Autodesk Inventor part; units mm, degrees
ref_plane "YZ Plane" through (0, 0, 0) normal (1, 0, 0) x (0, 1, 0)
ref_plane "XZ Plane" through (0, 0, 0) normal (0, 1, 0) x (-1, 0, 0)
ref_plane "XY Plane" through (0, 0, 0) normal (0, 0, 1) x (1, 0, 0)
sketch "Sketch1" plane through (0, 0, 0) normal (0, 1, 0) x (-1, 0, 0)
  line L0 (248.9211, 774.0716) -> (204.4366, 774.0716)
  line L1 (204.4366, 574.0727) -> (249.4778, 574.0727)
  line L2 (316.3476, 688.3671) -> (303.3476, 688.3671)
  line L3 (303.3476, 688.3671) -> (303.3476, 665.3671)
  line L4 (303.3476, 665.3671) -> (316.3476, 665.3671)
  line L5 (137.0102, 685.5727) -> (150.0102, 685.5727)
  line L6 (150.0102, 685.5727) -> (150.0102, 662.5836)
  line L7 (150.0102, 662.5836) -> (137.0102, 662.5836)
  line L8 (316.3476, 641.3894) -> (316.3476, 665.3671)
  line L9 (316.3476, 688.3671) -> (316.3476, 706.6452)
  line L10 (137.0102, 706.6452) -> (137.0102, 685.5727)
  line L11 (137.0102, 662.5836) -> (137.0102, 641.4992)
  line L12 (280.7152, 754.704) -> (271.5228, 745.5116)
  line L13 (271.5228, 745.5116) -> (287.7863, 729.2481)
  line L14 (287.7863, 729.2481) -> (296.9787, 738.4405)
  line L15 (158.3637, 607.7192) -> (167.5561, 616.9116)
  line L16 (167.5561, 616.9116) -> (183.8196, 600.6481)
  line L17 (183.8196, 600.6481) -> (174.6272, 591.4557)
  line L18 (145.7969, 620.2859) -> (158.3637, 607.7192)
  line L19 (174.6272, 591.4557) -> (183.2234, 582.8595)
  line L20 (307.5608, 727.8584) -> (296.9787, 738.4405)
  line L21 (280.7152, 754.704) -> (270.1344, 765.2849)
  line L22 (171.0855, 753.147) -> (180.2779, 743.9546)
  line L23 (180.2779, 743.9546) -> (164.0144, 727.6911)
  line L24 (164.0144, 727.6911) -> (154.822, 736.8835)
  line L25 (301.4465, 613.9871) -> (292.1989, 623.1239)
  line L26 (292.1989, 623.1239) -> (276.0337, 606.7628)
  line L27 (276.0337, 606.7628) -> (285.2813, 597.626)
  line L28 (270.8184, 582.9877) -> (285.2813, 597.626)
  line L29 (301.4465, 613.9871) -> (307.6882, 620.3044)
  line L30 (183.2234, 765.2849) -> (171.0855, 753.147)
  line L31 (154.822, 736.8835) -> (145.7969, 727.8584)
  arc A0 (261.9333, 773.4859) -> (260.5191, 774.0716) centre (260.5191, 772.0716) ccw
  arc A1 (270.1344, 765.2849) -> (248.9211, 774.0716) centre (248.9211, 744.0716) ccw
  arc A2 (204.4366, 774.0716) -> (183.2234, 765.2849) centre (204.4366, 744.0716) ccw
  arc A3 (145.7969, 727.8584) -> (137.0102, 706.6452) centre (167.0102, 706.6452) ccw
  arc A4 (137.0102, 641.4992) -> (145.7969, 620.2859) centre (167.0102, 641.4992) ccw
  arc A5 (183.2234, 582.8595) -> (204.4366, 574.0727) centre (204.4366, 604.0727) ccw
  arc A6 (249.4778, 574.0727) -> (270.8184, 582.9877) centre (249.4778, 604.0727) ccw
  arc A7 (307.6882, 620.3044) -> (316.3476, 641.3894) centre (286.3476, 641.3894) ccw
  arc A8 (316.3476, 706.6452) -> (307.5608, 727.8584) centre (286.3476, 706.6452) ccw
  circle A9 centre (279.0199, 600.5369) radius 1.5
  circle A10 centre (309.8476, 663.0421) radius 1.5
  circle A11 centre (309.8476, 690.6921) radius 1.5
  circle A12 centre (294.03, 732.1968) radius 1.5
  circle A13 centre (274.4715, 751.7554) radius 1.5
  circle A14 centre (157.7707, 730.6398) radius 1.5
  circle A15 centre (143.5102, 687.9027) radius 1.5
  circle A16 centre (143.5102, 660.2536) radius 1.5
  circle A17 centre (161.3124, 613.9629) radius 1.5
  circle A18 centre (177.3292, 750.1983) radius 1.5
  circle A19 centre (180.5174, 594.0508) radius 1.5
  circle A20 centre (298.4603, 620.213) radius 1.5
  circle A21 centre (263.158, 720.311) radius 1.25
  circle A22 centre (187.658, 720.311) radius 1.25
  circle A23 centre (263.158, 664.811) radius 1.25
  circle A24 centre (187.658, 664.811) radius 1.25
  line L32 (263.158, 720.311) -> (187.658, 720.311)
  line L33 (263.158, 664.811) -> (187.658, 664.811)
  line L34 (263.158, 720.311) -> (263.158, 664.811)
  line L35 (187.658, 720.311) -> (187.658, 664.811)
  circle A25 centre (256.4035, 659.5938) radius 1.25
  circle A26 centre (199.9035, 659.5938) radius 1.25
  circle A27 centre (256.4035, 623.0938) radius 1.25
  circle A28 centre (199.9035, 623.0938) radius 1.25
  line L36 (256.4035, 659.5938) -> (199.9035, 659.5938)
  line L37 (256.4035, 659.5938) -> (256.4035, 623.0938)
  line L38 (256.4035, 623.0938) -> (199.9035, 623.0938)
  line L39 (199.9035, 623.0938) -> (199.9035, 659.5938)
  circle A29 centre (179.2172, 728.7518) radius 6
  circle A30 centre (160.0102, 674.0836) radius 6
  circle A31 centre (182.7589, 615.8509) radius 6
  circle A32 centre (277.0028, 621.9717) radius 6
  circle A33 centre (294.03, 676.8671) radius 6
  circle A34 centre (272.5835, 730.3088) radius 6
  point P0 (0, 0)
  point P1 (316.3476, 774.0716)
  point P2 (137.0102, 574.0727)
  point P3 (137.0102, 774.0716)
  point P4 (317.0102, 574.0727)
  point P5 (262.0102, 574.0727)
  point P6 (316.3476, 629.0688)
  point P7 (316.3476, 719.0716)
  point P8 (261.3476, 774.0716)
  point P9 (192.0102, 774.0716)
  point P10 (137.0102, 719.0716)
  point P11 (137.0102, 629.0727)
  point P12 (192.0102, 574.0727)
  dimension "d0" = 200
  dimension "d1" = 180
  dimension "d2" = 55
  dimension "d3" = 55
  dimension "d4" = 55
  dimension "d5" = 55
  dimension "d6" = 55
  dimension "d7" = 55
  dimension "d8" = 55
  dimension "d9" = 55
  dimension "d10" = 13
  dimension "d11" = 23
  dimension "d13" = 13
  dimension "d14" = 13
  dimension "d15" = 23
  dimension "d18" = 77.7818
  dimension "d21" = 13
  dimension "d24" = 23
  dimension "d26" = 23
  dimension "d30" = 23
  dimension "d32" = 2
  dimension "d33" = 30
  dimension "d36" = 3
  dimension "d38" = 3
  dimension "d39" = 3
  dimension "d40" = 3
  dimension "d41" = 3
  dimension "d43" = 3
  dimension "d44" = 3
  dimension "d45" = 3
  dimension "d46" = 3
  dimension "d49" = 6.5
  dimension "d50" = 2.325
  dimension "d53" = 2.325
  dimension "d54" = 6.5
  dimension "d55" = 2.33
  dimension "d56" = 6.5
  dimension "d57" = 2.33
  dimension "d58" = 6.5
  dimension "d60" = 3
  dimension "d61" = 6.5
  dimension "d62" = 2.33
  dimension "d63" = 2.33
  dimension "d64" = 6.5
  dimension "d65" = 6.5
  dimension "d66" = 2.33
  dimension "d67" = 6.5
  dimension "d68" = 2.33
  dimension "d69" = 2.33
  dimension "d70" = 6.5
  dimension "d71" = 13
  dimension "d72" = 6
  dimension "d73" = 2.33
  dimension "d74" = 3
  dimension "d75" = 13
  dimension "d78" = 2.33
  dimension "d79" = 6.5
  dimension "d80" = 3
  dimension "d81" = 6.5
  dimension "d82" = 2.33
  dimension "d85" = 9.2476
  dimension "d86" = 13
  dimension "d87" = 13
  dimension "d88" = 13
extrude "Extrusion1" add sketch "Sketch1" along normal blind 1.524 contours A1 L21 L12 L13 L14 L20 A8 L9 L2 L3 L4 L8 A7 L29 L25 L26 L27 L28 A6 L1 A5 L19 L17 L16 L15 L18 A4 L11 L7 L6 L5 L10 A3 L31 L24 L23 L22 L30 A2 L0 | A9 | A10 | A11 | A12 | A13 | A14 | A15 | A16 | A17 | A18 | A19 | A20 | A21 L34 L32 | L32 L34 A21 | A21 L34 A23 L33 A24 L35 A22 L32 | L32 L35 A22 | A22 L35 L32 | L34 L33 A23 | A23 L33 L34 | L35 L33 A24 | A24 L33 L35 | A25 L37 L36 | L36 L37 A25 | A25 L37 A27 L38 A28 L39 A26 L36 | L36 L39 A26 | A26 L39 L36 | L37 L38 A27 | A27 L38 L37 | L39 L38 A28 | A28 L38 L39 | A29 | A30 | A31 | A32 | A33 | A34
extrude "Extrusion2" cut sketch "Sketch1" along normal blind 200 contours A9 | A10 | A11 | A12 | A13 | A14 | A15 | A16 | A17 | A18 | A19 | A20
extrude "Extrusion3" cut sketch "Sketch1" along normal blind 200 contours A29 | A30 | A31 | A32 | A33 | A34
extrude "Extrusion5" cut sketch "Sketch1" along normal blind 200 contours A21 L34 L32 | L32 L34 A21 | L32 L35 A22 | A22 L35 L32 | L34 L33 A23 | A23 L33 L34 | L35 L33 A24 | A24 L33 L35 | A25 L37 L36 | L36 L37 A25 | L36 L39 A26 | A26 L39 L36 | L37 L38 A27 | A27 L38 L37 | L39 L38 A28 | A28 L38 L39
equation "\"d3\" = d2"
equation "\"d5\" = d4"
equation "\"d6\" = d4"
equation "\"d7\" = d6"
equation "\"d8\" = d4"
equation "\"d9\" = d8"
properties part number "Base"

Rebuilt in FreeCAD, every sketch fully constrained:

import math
import FreeCAD as App
import Part
import Sketcher
Q = App.Units.Quantity

doc = App.newDocument("Part")
body = doc.addObject("PartDesign::Body", "Body")

sketch1 = doc.addObject("Sketcher::SketchObject", "Sketch")
body.addObject(sketch1)
sketch1.AttachmentSupport = (doc.XZ_Plane, [""])
sketch1.MapMode = "FlatFace"
sketch1.addGeometry([
    Part.ArcOfCircle(Part.Circle(App.Vector(-249, 744, 0), App.Vector(0, 0, 1), 30), math.radians(90), math.radians(135)),
    Part.LineSegment(App.Vector(-249, 774, 0), App.Vector(-204, 774, 0)),
    Part.ArcOfCircle(Part.Circle(App.Vector(-204, 744, 0), App.Vector(0, 0, 1), 30), math.radians(45), math.radians(90)),
    Part.LineSegment(App.Vector(-183, 765, 0), App.Vector(-171, 753, 0)),
    Part.LineSegment(App.Vector(-171, 753, 0), App.Vector(-180, 744, 0)),
    Part.LineSegment(App.Vector(-180, 744, 0), App.Vector(-164, 728, 0)),
    Part.LineSegment(App.Vector(-164, 728, 0), App.Vector(-155, 737, 0)),
    Part.LineSegment(App.Vector(-155, 737, 0), App.Vector(-146, 728, 0)),
    Part.ArcOfCircle(Part.Circle(App.Vector(-167, 707, 0), App.Vector(0, 0, 1), 30), math.radians(0), math.radians(45)),
    Part.LineSegment(App.Vector(-137, 707, 0), App.Vector(-137, 686, 0)),
    Part.LineSegment(App.Vector(-137, 686, 0), App.Vector(-150, 686, 0)),
    Part.LineSegment(App.Vector(-150, 686, 0), App.Vector(-150, 663, 0)),
    Part.LineSegment(App.Vector(-150, 663, 0), App.Vector(-137, 663, 0)),
    Part.LineSegment(App.Vector(-137, 663, 0), App.Vector(-137, 641, 0)),
    Part.ArcOfCircle(Part.Circle(App.Vector(-167, 641, 0), App.Vector(0, 0, 1), 30), math.radians(-45), math.radians(0)),
    Part.LineSegment(App.Vector(-146, 620, 0), App.Vector(-158, 608, 0)),
    Part.LineSegment(App.Vector(-158, 608, 0), App.Vector(-168, 617, 0)),
    Part.LineSegment(App.Vector(-168, 617, 0), App.Vector(-184, 601, 0)),
    Part.LineSegment(App.Vector(-184, 601, 0), App.Vector(-175, 591, 0)),
    Part.LineSegment(App.Vector(-175, 591, 0), App.Vector(-183, 583, 0)),
    Part.ArcOfCircle(Part.Circle(App.Vector(-204, 604, 0), App.Vector(0, 0, 1), 30), math.radians(-90), math.radians(-45)),
    Part.LineSegment(App.Vector(-204, 574, 0), App.Vector(-249, 574, 0)),
    Part.ArcOfCircle(Part.Circle(App.Vector(-249, 604, 0), App.Vector(0, 0, 1), 30), math.radians(-135), math.radians(-90)),
    Part.LineSegment(App.Vector(-271, 583, 0), App.Vector(-285, 598, 0)),
    Part.LineSegment(App.Vector(-285, 598, 0), App.Vector(-276, 607, 0)),
    Part.LineSegment(App.Vector(-276, 607, 0), App.Vector(-292, 623, 0)),
    Part.LineSegment(App.Vector(-292, 623, 0), App.Vector(-301, 614, 0)),
    Part.LineSegment(App.Vector(-301, 614, 0), App.Vector(-308, 620, 0)),
    Part.ArcOfCircle(Part.Circle(App.Vector(-286, 641, 0), App.Vector(0, 0, 1), 30), math.radians(180), math.radians(225)),
    Part.LineSegment(App.Vector(-316, 641, 0), App.Vector(-316, 665, 0)),
    Part.LineSegment(App.Vector(-316, 665, 0), App.Vector(-303, 665, 0)),
    Part.LineSegment(App.Vector(-303, 665, 0), App.Vector(-303, 688, 0)),
    Part.LineSegment(App.Vector(-303, 688, 0), App.Vector(-316, 688, 0)),
    Part.LineSegment(App.Vector(-316, 688, 0), App.Vector(-316, 707, 0)),
    Part.ArcOfCircle(Part.Circle(App.Vector(-286, 707, 0), App.Vector(0, 0, 1), 30), math.radians(135), math.radians(180)),
    Part.LineSegment(App.Vector(-308, 728, 0), App.Vector(-297, 738, 0)),
    Part.LineSegment(App.Vector(-297, 738, 0), App.Vector(-288, 729, 0)),
    Part.LineSegment(App.Vector(-288, 729, 0), App.Vector(-272, 746, 0)),
    Part.LineSegment(App.Vector(-272, 746, 0), App.Vector(-281, 755, 0)),
    Part.LineSegment(App.Vector(-281, 755, 0), App.Vector(-270, 765, 0)),
], False)
sketch1.addConstraint([
    Sketcher.Constraint("Tangent", 0, 1, 1, 1),
    Sketcher.Constraint("Tangent", 1, 2, 2, 2),
    Sketcher.Constraint("Tangent", 2, 1, 3, 1),
    Sketcher.Constraint("Coincident", 3, 2, 4, 1),
    Sketcher.Constraint("Coincident", 4, 2, 5, 1),
    Sketcher.Constraint("Coincident", 5, 2, 6, 1),
    Sketcher.Constraint("Coincident", 6, 2, 7, 1),
    Sketcher.Constraint("Tangent", 7, 2, 8, 2),
    Sketcher.Constraint("Tangent", 8, 1, 9, 1),
    Sketcher.Constraint("Coincident", 9, 2, 10, 1),
    Sketcher.Constraint("Coincident", 10, 2, 11, 1),
    Sketcher.Constraint("Coincident", 11, 2, 12, 1),
    Sketcher.Constraint("Coincident", 12, 2, 13, 1),
    Sketcher.Constraint("Tangent", 13, 2, 14, 2),
    Sketcher.Constraint("Tangent", 14, 1, 15, 1),
    Sketcher.Constraint("Coincident", 15, 2, 16, 1),
    Sketcher.Constraint("Coincident", 16, 2, 17, 1),
    Sketcher.Constraint("Coincident", 17, 2, 18, 1),
    Sketcher.Constraint("Coincident", 18, 2, 19, 1),
    Sketcher.Constraint("Tangent", 19, 2, 20, 2),
    Sketcher.Constraint("Tangent", 20, 1, 21, 1),
    Sketcher.Constraint("Tangent", 21, 2, 22, 2),
    Sketcher.Constraint("Tangent", 22, 1, 23, 1),
    Sketcher.Constraint("Coincident", 23, 2, 24, 1),
    Sketcher.Constraint("Coincident", 24, 2, 25, 1),
    Sketcher.Constraint("Coincident", 25, 2, 26, 1),
    Sketcher.Constraint("Coincident", 26, 2, 27, 1),
    Sketcher.Constraint("Tangent", 27, 2, 28, 2),
    Sketcher.Constraint("Tangent", 28, 1, 29, 1),
    Sketcher.Constraint("Coincident", 29, 2, 30, 1),
    Sketcher.Constraint("Coincident", 30, 2, 31, 1),
    Sketcher.Constraint("Coincident", 31, 2, 32, 1),
    Sketcher.Constraint("Coincident", 32, 2, 33, 1),
    Sketcher.Constraint("Tangent", 33, 2, 34, 2),
    Sketcher.Constraint("Tangent", 34, 1, 35, 1),
    Sketcher.Constraint("Coincident", 35, 2, 36, 1),
    Sketcher.Constraint("Coincident", 36, 2, 37, 1),
    Sketcher.Constraint("Coincident", 37, 2, 38, 1),
    Sketcher.Constraint("Coincident", 38, 2, 39, 1),
    Sketcher.Constraint("Tangent", 39, 2, 0, 2),
    Sketcher.Constraint("Horizontal", 1),
    Sketcher.Constraint("Vertical", 9),
    Sketcher.Constraint("Horizontal", 10),
    Sketcher.Constraint("Vertical", 11),
    Sketcher.Constraint("Horizontal", 12),
    Sketcher.Constraint("Vertical", 13),
    Sketcher.Constraint("Horizontal", 21),
    Sketcher.Constraint("Vertical", 29),
    Sketcher.Constraint("Horizontal", 30),
    Sketcher.Constraint("Vertical", 31),
    Sketcher.Constraint("Horizontal", 32),
    Sketcher.Constraint("Vertical", 33),
    Sketcher.Constraint("Equal", 0, 2),
    Sketcher.Constraint("Equal", 2, 8),
    Sketcher.Constraint("Equal", 8, 14),
    Sketcher.Constraint("Equal", 14, 20),
    Sketcher.Constraint("Equal", 20, 22),
    Sketcher.Constraint("Equal", 22, 28),
    Sketcher.Constraint("Equal", 28, 34),
    Sketcher.Constraint("Perpendicular", 3, 4),
    Sketcher.Constraint("Perpendicular", 4, 5),
    Sketcher.Constraint("Perpendicular", 5, 6),
    Sketcher.Constraint("Perpendicular", 6, 7),
    Sketcher.Constraint("Perpendicular", 7, 15),
    Sketcher.Constraint("Perpendicular", 15, 16),
    Sketcher.Constraint("Perpendicular", 16, 17),
    Sketcher.Constraint("Perpendicular", 17, 18),
    Sketcher.Constraint("Perpendicular", 18, 19),
    Sketcher.Constraint("Perpendicular", 23, 24),
    Sketcher.Constraint("Perpendicular", 24, 25),
    Sketcher.Constraint("Perpendicular", 25, 26),
    Sketcher.Constraint("Perpendicular", 26, 27),
    Sketcher.Constraint("Parallel", 19, 35),
    Sketcher.Constraint("Perpendicular", 35, 36),
    Sketcher.Constraint("Perpendicular", 36, 37),
    Sketcher.Constraint("Perpendicular", 37, 38),
    Sketcher.Constraint("Perpendicular", 38, 39),
    Sketcher.Constraint("Horizontal", 8, 3, 34, 3),
    Sketcher.Constraint("Horizontal", 7, 2, 34, 1),
    Sketcher.Constraint("Vertical", 8, 3, 14, 3),
    Sketcher.Constraint("Vertical", 2, 3, 20, 3),
    Sketcher.Constraint("Vertical", 28, 3, 34, 3),
    Sketcher.Constraint("Equal", 12, 30),
    Sketcher.Constraint("Equal", 4, 6),
    Sketcher.Constraint("Equal", 6, 16),
    Sketcher.Constraint("Equal", 5, 17),
    Sketcher.Constraint("Equal", 16, 18),
    Sketcher.Constraint("Equal", 18, 24),
    Sketcher.Constraint("Equal", 17, 25),
    Sketcher.Constraint("Equal", 24, 26),
    Sketcher.Constraint("Equal", 26, 36),
    Sketcher.Constraint("Equal", 25, 37),
    Sketcher.Constraint("Equal", 36, 38),
    Sketcher.Constraint("Radius", 2, Q("30 mm")),
    Sketcher.Constraint("DistanceX", 10, 2, 10, 1, Q("13 mm")),
    Sketcher.Constraint("DistanceY", 31, 1, 31, 2, Q("23 mm")),
    Sketcher.Constraint("Distance", 4, Q("13 mm")),
    Sketcher.Constraint("Distance", 5, Q("23 mm")),
    Sketcher.Constraint("DistanceX", 23, 2, 24, 2, Q("9.2476 mm")),
    Sketcher.Constraint("DistanceY", 11, 2, 11, 1, Q("22.989 mm")),
    Sketcher.Constraint("DistanceY", 33, 1, 33, 2, Q("18.278 mm")),
    Sketcher.Constraint("DistanceY", 15, 2, 14, 3, Q("33.78 mm")),
    Sketcher.Constraint("DistanceY", 22, 3, 24, 2, Q("2.69 mm")),
    Sketcher.Constraint("DistanceY", 0, 3, 37, 2, Q("1.44 mm")),
    Sketcher.Constraint("DistanceX", 1, 1, 1, 2, Q("44.4845 mm")),
    Sketcher.Constraint("DistanceX", 21, 2, 21, 1, Q("45.0412 mm")),
    Sketcher.Constraint("DistanceY", 9, 2, 9, 1, Q("21.0725 mm")),
    Sketcher.Constraint("DistanceY", 13, 2, 13, 1, Q("21.0844 mm")),
    Sketcher.Constraint("DistanceX", 0, 3, -1, 1, Q("248.921 mm")),
    Sketcher.Constraint("DistanceY", -1, 1, 3, 2, Q("753.147 mm")),
    Sketcher.Constraint("DistanceX", 4, 2, -1, 1, Q("180.278 mm")),
    Sketcher.Constraint("DistanceX", 7, 2, -1, 1, Q("145.797 mm")),
])
pad1 = doc.addObject("PartDesign::Pad", "Pad")
body.addObject(pad1)
pad1.Profile = sketch1
pad1.Length = 1.524
pad1.Reversed = True

sketch2 = doc.addObject("Sketcher::SketchObject", "Sketch001")
body.addObject(sketch2)
sketch2.AttachmentSupport = (doc.XZ_Plane, [""])
sketch2.MapMode = "FlatFace"
sketch2.addGeometry([
    Part.Circle(App.Vector(-279, 600.5, 0), App.Vector(0, 0, 1), 1.5),
    Part.Circle(App.Vector(-309.8, 663, 0), App.Vector(0, 0, 1), 1.5),
    Part.Circle(App.Vector(-309.8, 690.7, 0), App.Vector(0, 0, 1), 1.5),
    Part.Circle(App.Vector(-294, 732.2, 0), App.Vector(0, 0, 1), 1.5),
    Part.Circle(App.Vector(-274.5, 751.8, 0), App.Vector(0, 0, 1), 1.5),
    Part.Circle(App.Vector(-157.8, 730.6, 0), App.Vector(0, 0, 1), 1.5),
    Part.Circle(App.Vector(-143.5, 687.9, 0), App.Vector(0, 0, 1), 1.5),
    Part.Circle(App.Vector(-143.5, 660.3, 0), App.Vector(0, 0, 1), 1.5),
    Part.Circle(App.Vector(-161.3, 614, 0), App.Vector(0, 0, 1), 1.5),
    Part.Circle(App.Vector(-177.3, 750.2, 0), App.Vector(0, 0, 1), 1.5),
    Part.Circle(App.Vector(-180.5, 594.1, 0), App.Vector(0, 0, 1), 1.5),
    Part.Circle(App.Vector(-298.5, 620.2, 0), App.Vector(0, 0, 1), 1.5),
], False)
sketch2.addConstraint([
    Sketcher.Constraint("Equal", 0, 1),
    Sketcher.Constraint("Equal", 1, 2),
    Sketcher.Constraint("Equal", 2, 3),
    Sketcher.Constraint("Equal", 3, 4),
    Sketcher.Constraint("Equal", 4, 5),
    Sketcher.Constraint("Equal", 5, 6),
    Sketcher.Constraint("Equal", 6, 7),
    Sketcher.Constraint("Equal", 7, 8),
    Sketcher.Constraint("Equal", 8, 9),
    Sketcher.Constraint("Equal", 9, 10),
    Sketcher.Constraint("Equal", 10, 11),
    Sketcher.Constraint("Vertical", 1, 3, 2, 3),
    Sketcher.Constraint("Vertical", 6, 3, 7, 3),
    Sketcher.Constraint("Diameter", 0, Q("3 mm")),
    Sketcher.Constraint("DistanceX", 0, 3, -1, 1, Q("279.02 mm")),
    Sketcher.Constraint("DistanceX", 3, 3, -1, 1, Q("294.03 mm")),
    Sketcher.Constraint("DistanceY", 1, 3, 2, 3, Q("27.65 mm")),
    Sketcher.Constraint("DistanceY", 0, 3, 3, 3, Q("131.66 mm")),
    Sketcher.Constraint("DistanceY", -1, 1, 0, 3, Q("600.537 mm")),
    Sketcher.Constraint("DistanceY", -1, 1, 1, 3, Q("663.042 mm")),
    Sketcher.Constraint("DistanceY", -1, 1, 8, 3, Q("613.963 mm")),
    Sketcher.Constraint("DistanceY", -1, 1, 11, 3, Q("620.213 mm")),
    Sketcher.Constraint("DistanceX", 2, 3, 4, 3, Q("35.376 mm")),
    Sketcher.Constraint("DistanceY", 5, 3, 3, 3, Q("1.557 mm")),
    Sketcher.Constraint("DistanceX", 2, 3, 5, 3, Q("152.077 mm")),
    Sketcher.Constraint("DistanceY", 6, 3, 5, 3, Q("42.737 mm")),
    Sketcher.Constraint("DistanceY", 7, 3, 6, 3, Q("27.649 mm")),
    Sketcher.Constraint("DistanceX", 9, 3, 6, 3, Q("33.819 mm")),
    Sketcher.Constraint("DistanceY", 9, 3, 4, 3, Q("1.557 mm")),
    Sketcher.Constraint("DistanceX", 10, 3, 8, 3, Q("19.205 mm")),
    Sketcher.Constraint("DistanceY", 10, 3, 8, 3, Q("19.912 mm")),
    Sketcher.Constraint("DistanceX", 11, 3, 10, 3, Q("117.943 mm")),
    Sketcher.Constraint("DistanceX", 1, 3, -1, 1, Q("309.8476 mm")),
    Sketcher.Constraint("DistanceY", -1, 1, 4, 3, Q("751.7554 mm")),
    Sketcher.Constraint("DistanceX", 6, 3, -1, 1, Q("143.5102 mm")),
    Sketcher.Constraint("DistanceX", 8, 3, -1, 1, Q("161.3124 mm")),
])
pocket1 = doc.addObject("PartDesign::Pocket", "Pocket")
body.addObject(pocket1)
pocket1.Profile = sketch2
pocket1.Length = 200

sketch3 = doc.addObject("Sketcher::SketchObject", "Sketch002")
body.addObject(sketch3)
sketch3.AttachmentSupport = (doc.XZ_Plane, [""])
sketch3.MapMode = "FlatFace"
sketch3.addGeometry([
    Part.Circle(App.Vector(-179, 729, 0), App.Vector(0, 0, 1), 6),
    Part.Circle(App.Vector(-160, 674, 0), App.Vector(0, 0, 1), 6),
    Part.Circle(App.Vector(-183, 616, 0), App.Vector(0, 0, 1), 6),
    Part.Circle(App.Vector(-277, 622, 0), App.Vector(0, 0, 1), 6),
    Part.Circle(App.Vector(-294, 677, 0), App.Vector(0, 0, 1), 6),
    Part.Circle(App.Vector(-273, 730, 0), App.Vector(0, 0, 1), 6),
], False)
sketch3.addConstraint([
    Sketcher.Constraint("Equal", 0, 1),
    Sketcher.Constraint("Equal", 1, 2),
    Sketcher.Constraint("Equal", 2, 3),
    Sketcher.Constraint("Equal", 3, 4),
    Sketcher.Constraint("Equal", 4, 5),
    Sketcher.Constraint("Diameter", 0, Q("12 mm")),
    Sketcher.Constraint("DistanceX", 4, 3, -1, 1, Q("294.03 mm")),
    Sketcher.Constraint("DistanceY", 3, 3, 0, 3, Q("106.78 mm")),
    Sketcher.Constraint("DistanceX", 2, 3, -1, 1, Q("182.759 mm")),
    Sketcher.Constraint("DistanceY", -1, 1, 2, 3, Q("615.851 mm")),
    Sketcher.Constraint("DistanceY", -1, 1, 4, 3, Q("676.867 mm")),
    Sketcher.Constraint("DistanceX", 0, 3, 1, 3, Q("19.207 mm")),
    Sketcher.Constraint("DistanceY", 2, 3, 0, 3, Q("112.901 mm")),
    Sketcher.Constraint("DistanceX", 3, 3, 2, 3, Q("94.244 mm")),
    Sketcher.Constraint("DistanceY", 3, 3, 1, 3, Q("52.112 mm")),
    Sketcher.Constraint("DistanceY", 0, 3, 5, 3, Q("1.557 mm")),
    Sketcher.Constraint("DistanceX", 0, 3, -1, 1, Q("179.2172 mm")),
    Sketcher.Constraint("DistanceX", 5, 3, -1, 1, Q("272.5835 mm")),
])
pocket2 = doc.addObject("PartDesign::Pocket", "Pocket001")
body.addObject(pocket2)
pocket2.Profile = sketch3
pocket2.Length = 200

sketch4 = doc.addObject("Sketcher::SketchObject", "Sketch003")
body.addObject(sketch4)
sketch4.AttachmentSupport = (doc.XZ_Plane, [""])
sketch4.MapMode = "FlatFace"
sketch4.addGeometry([
    Part.Circle(App.Vector(-263.2, 720.3, 0), App.Vector(0, 0, 1), 1.2),
    Part.Circle(App.Vector(-187.7, 720.3, 0), App.Vector(0, 0, 1), 1.2),
    Part.Circle(App.Vector(-263.2, 664.8, 0), App.Vector(0, 0, 1), 1.2),
    Part.Circle(App.Vector(-187.7, 664.8, 0), App.Vector(0, 0, 1), 1.2),
    Part.Circle(App.Vector(-256.4, 659.6, 0), App.Vector(0, 0, 1), 1.2),
    Part.Circle(App.Vector(-199.9, 659.6, 0), App.Vector(0, 0, 1), 1.2),
    Part.Circle(App.Vector(-256.4, 623.1, 0), App.Vector(0, 0, 1), 1.2),
    Part.Circle(App.Vector(-199.9, 623.1, 0), App.Vector(0, 0, 1), 1.2),
], False)
sketch4.addConstraint([
    Sketcher.Constraint("Equal", 0, 1),
    Sketcher.Constraint("Equal", 1, 2),
    Sketcher.Constraint("Equal", 2, 3),
    Sketcher.Constraint("Equal", 3, 4),
    Sketcher.Constraint("Equal", 4, 5),
    Sketcher.Constraint("Equal", 5, 6),
    Sketcher.Constraint("Equal", 6, 7),
    Sketcher.Constraint("Horizontal", 0, 3, 1, 3),
    Sketcher.Constraint("Horizontal", 2, 3, 3, 3),
    Sketcher.Constraint("Horizontal", 4, 3, 5, 3),
    Sketcher.Constraint("Horizontal", 6, 3, 7, 3),
    Sketcher.Constraint("Vertical", 0, 3, 2, 3),
    Sketcher.Constraint("Vertical", 1, 3, 3, 3),
    Sketcher.Constraint("Vertical", 4, 3, 6, 3),
    Sketcher.Constraint("Vertical", 5, 3, 7, 3),
    Sketcher.Constraint("Diameter", 0, Q("2.5 mm")),
    Sketcher.Constraint("DistanceX", 0, 3, 1, 3, Q("75.5 mm")),
    Sketcher.Constraint("DistanceY", 2, 3, 0, 3, Q("55.5 mm")),
    Sketcher.Constraint("DistanceX", 4, 3, 5, 3, Q("56.5 mm")),
    Sketcher.Constraint("DistanceY", 6, 3, 4, 3, Q("36.5 mm")),
    Sketcher.Constraint("DistanceX", 0, 3, -1, 1, Q("263.158 mm")),
    Sketcher.Constraint("DistanceY", -1, 1, 0, 3, Q("720.311 mm")),
    Sketcher.Constraint("DistanceX", 4, 3, -1, 1, Q("256.4035 mm")),
    Sketcher.Constraint("DistanceY", -1, 1, 4, 3, Q("659.5938 mm")),
])
pocket3 = doc.addObject("PartDesign::Pocket", "Pocket002")
body.addObject(pocket3)
pocket3.Profile = sketch4
pocket3.Length = 200

doc.recompute()
